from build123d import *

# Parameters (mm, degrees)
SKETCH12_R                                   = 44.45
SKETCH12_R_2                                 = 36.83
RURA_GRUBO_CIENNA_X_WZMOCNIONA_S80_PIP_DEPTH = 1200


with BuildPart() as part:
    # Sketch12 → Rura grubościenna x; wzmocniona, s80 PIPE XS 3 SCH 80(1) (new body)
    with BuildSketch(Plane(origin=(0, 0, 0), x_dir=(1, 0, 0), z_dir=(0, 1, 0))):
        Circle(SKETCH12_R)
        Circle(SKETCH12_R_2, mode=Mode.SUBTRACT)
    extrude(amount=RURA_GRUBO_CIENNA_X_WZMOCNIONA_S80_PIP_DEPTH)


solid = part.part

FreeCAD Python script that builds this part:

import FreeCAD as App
import Part
import Sketcher

V = App.Vector
Q = App.Units.Quantity

doc = App.newDocument("Part")
body = doc.addObject("PartDesign::Body", "Body")

sketch1 = body.newObject("Sketcher::SketchObject", "Sketch")
sketch1.AttachmentSupport = (doc.getObject("XZ_Plane"), [""])
sketch1.MapMode = "FlatFace"
sketch1.addGeometry([
    Part.Circle(V(0, 0, 0), V(0, 0, 1), 44),
    Part.Circle(V(0, 0, 0), V(0, 0, 1), 37),
], False)
sketch1.addConstraint([
    Sketcher.Constraint("Coincident", 0, 3, -1, 1),
    Sketcher.Constraint("Coincident", 1, 3, -1, 1),
    Sketcher.Constraint("Diameter", 0, Q("3.5 in")),
    Sketcher.Constraint("Diameter", 1, Q("2.9 in")),
])
pad1 = body.newObject("PartDesign::Pad", "Pad")
pad1.Profile = sketch1
pad1.Length = 1200
pad1.Reversed = True

doc.recompute()
